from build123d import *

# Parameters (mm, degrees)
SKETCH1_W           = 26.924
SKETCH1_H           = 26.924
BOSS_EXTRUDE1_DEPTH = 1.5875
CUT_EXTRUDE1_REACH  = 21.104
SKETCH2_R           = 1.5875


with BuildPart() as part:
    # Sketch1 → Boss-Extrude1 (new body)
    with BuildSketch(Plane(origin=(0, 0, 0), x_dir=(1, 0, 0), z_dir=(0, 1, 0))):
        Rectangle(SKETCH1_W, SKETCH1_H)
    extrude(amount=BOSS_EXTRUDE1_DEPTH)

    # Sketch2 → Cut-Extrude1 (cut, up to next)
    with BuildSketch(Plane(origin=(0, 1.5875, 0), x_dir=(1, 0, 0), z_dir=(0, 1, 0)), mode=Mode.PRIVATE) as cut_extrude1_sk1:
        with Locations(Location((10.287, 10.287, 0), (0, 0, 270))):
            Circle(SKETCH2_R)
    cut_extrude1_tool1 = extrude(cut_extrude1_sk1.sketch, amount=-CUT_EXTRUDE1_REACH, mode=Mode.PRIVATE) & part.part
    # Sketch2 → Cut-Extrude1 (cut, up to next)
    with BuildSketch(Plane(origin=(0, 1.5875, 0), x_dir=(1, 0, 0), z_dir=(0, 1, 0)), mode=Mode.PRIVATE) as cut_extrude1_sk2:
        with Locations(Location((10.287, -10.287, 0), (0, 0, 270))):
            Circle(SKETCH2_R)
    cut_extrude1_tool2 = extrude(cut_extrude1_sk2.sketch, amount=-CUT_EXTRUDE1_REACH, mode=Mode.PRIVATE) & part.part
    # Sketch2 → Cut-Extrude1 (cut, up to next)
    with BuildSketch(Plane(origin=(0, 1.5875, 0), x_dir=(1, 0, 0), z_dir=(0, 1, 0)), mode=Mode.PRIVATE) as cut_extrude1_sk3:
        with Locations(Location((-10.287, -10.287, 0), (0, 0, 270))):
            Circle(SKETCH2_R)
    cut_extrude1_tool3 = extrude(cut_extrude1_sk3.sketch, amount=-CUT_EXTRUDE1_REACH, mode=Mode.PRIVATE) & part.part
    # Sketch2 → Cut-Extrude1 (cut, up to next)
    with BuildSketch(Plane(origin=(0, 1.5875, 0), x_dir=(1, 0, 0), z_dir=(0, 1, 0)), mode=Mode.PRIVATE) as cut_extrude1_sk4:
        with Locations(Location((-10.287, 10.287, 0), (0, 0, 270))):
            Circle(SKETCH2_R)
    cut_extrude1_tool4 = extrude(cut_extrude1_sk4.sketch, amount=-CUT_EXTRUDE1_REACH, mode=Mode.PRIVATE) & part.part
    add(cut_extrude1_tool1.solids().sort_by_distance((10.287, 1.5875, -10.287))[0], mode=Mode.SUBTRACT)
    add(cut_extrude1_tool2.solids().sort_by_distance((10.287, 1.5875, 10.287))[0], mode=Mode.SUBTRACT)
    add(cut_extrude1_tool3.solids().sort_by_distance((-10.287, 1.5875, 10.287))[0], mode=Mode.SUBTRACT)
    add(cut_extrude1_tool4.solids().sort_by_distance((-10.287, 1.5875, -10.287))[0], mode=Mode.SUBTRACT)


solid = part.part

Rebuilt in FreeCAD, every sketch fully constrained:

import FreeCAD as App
import Part
import Sketcher
Q = App.Units.Quantity


def add_polygon(sketch, points):
    """Adds a closed chain of lines whose ends are joined by coincident constraints."""
    first, n = sketch.GeometryCount, len(points)
    for a, b in zip(points, points[1:] + points[:1]):
        sketch.addGeometry(Part.LineSegment(App.Vector(*a, 0), App.Vector(*b, 0)), False)
    for i in range(n):
        sketch.addConstraint(Sketcher.Constraint("Coincident", first + i, 2, first + (i + 1) % n, 1))

doc = App.newDocument("Part")
body = doc.addObject("PartDesign::Body", "Body")

# Sketch on XZ plane
sketch1 = body.newObject("Sketcher::SketchObject", "Sketch")
sketch1.AttachmentSupport = (doc.getObject("XZ_Plane"), [""])
sketch1.MapMode = "FlatFace"
add_polygon(sketch1, [(-13, -13), (-13, 13), (13, 13), (13, -13)])  # lines 0-3
sketch1.addConstraint([
    Sketcher.Constraint("Vertical", 0),
    Sketcher.Constraint("Horizontal", 1),
    Sketcher.Constraint("Vertical", 2),
    Sketcher.Constraint("Horizontal", 3),
    Sketcher.Constraint("Symmetric", 0, 2, 2, 2, -1, 1),
    Sketcher.Constraint("Equal", 3, 0),
    Sketcher.Constraint("DistanceX", 1, 1, 1, 2, Q("1.06 in")),
])
pad1 = body.newObject("PartDesign::Pad", "Pad")
pad1.Profile = sketch1
pad1.Length = Q("0.0625 in")
pad1.Reversed = True

# Sketch on XZ plane
sketch2 = body.newObject("Sketcher::SketchObject", "Sketch001")
sketch2.AttachmentSupport = (doc.getObject("XZ_Plane"), [""])
sketch2.MapMode = "FlatFace"
sketch2.AttachmentOffset = App.Placement(App.Vector(0, 0, -0.0625 * 25.4), App.Rotation())
sketch2.addGeometry(Part.Circle(App.Vector(10.3, -10.3, 0), App.Vector(0, 0, 1), 1.6), False)
sketch2.addConstraint([
    Sketcher.Constraint("Diameter", 0, Q("0.125 in")),
    Sketcher.Constraint("DistanceX", -1, 1, 0, 3, Q("0.405 in")),
    Sketcher.Constraint("DistanceY", 0, 3, -1, 1, Q("0.405 in")),
])
pocket1 = body.newObject("PartDesign::Pocket", "Pocket")
pocket1.Profile = sketch2
pocket1.Type = "UpToFirst"
pocket1.Reversed = True

# Sketch on XZ plane
sketch3 = body.newObject("Sketcher::SketchObject", "Sketch002")
sketch3.AttachmentSupport = (doc.getObject("XZ_Plane"), [""])
sketch3.MapMode = "FlatFace"
sketch3.AttachmentOffset = App.Placement(App.Vector(0, 0, -0.0625 * 25.4), App.Rotation())
sketch3.addGeometry(Part.Circle(App.Vector(10.3, 10.3, 0), App.Vector(0, 0, 1), 1.6), False)
sketch3.addConstraint([
    Sketcher.Constraint("Diameter", 0, Q("0.125 in")),
    Sketcher.Constraint("DistanceX", -1, 1, 0, 3, Q("0.405 in")),
    Sketcher.Constraint("DistanceY", -1, 1, 0, 3, Q("0.405 in")),
])
pocket2 = body.newObject("PartDesign::Pocket", "Pocket001")
pocket2.Profile = sketch3
pocket2.Type = "UpToFirst"
pocket2.Reversed = True

# Sketch on XZ plane
sketch4 = body.newObject("Sketcher::SketchObject", "Sketch003")
sketch4.AttachmentSupport = (doc.getObject("XZ_Plane"), [""])
sketch4.MapMode = "FlatFace"
sketch4.AttachmentOffset = App.Placement(App.Vector(0, 0, -0.0625 * 25.4), App.Rotation())
sketch4.addGeometry(Part.Circle(App.Vector(-10.3, 10.3, 0), App.Vector(0, 0, 1), 1.6), False)
sketch4.addConstraint([
    Sketcher.Constraint("Diameter", 0, Q("0.125 in")),
    Sketcher.Constraint("DistanceX", 0, 3, -1, 1, Q("0.405 in")),
    Sketcher.Constraint("DistanceY", -1, 1, 0, 3, Q("0.405 in")),
])
pocket3 = body.newObject("PartDesign::Pocket", "Pocket002")
pocket3.Profile = sketch4
pocket3.Type = "UpToFirst"
pocket3.Reversed = True

# Sketch on XZ plane
sketch5 = body.newObject("Sketcher::SketchObject", "Sketch004")
sketch5.AttachmentSupport = (doc.getObject("XZ_Plane"), [""])
sketch5.MapMode = "FlatFace"
sketch5.AttachmentOffset = App.Placement(App.Vector(0, 0, -0.0625 * 25.4), App.Rotation())
sketch5.addGeometry(Part.Circle(App.Vector(-10.3, -10.3, 0), App.Vector(0, 0, 1), 1.6), False)
sketch5.addConstraint([
    Sketcher.Constraint("Diameter", 0, Q("0.125 in")),
    Sketcher.Constraint("DistanceX", 0, 3, -1, 1, Q("0.405 in")),
    Sketcher.Constraint("DistanceY", 0, 3, -1, 1, Q("0.405 in")),
])
pocket4 = body.newObject("PartDesign::Pocket", "Pocket003")
pocket4.Profile = sketch5
pocket4.Type = "UpToFirst"
pocket4.Reversed = True

doc.recompute()
